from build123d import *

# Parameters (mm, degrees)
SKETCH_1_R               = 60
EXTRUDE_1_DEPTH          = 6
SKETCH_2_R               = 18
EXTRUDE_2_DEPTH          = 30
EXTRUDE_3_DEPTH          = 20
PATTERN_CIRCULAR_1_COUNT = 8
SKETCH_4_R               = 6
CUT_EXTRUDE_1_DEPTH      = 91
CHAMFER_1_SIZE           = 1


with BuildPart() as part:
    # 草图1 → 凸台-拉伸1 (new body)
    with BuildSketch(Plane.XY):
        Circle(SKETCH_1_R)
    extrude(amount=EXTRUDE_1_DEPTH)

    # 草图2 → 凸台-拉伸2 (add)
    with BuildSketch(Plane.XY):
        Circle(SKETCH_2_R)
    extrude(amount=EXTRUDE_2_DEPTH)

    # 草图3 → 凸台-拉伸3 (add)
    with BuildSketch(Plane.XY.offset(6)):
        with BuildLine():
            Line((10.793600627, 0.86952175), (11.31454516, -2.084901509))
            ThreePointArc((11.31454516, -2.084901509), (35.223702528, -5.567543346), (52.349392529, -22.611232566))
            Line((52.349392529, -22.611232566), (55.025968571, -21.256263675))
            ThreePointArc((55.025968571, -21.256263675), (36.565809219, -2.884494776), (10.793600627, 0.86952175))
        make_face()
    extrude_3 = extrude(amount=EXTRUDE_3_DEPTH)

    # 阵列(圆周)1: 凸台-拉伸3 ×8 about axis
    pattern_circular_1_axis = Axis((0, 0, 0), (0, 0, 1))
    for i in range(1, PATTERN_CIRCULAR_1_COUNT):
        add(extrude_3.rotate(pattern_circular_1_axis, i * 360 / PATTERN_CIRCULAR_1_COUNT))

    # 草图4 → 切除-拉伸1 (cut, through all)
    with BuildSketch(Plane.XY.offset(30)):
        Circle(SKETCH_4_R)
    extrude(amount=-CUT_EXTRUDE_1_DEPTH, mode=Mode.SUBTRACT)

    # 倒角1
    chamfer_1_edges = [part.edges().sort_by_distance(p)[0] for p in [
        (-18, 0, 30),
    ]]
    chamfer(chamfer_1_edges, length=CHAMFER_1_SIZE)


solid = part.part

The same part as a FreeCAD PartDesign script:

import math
import FreeCAD as App
import Part
import Sketcher

V = App.Vector
Q = App.Units.Quantity


def edges_at(feature, points):
    """Names of the edges that pass closest to the given points."""
    edges = feature.Shape.Edges
    near = lambda p: min(range(len(edges)), key=lambda i: edges[i].distToShape(Part.Vertex(*p))[0])
    return sorted({f"Edge{near(p) + 1}" for p in points})

doc = App.newDocument("Part")
body = doc.addObject("PartDesign::Body", "Body")

sketch1 = doc.addObject("Sketcher::SketchObject", "Sketch")
body.addObject(sketch1)
sketch1.AttachmentSupport = (doc.XY_Plane, [""])
sketch1.MapMode = "FlatFace"
sketch1.addGeometry(Part.Circle(V(0, 0, 0), V(0, 0, 1), 60), False)
sketch1.addConstraint([
    Sketcher.Constraint("Coincident", 0, 3, -1, 1),
    Sketcher.Constraint("Diameter", 0, Q("120 mm")),
])
pad1 = doc.addObject("PartDesign::Pad", "Pad")
body.addObject(pad1)
pad1.Profile = sketch1
pad1.Length = 6

sketch2 = doc.addObject("Sketcher::SketchObject", "Sketch001")
body.addObject(sketch2)
sketch2.AttachmentSupport = (doc.XY_Plane, [""])
sketch2.MapMode = "FlatFace"
sketch2.addGeometry(Part.Circle(V(0, 0, 0), V(0, 0, 1), 18), False)
sketch2.addConstraint([
    Sketcher.Constraint("Coincident", 0, 3, -1, 1),
    Sketcher.Constraint("Diameter", 0, Q("36 mm")),
])
pad2 = doc.addObject("PartDesign::Pad", "Pad001")
body.addObject(pad2)
pad2.Profile = sketch2
pad2.Length = 30

sketch3 = doc.addObject("Sketcher::SketchObject", "Sketch002")
body.addObject(sketch3)
sketch3.AttachmentSupport = (doc.XY_Plane, [""])
sketch3.MapMode = "FlatFace"
sketch3.AttachmentOffset = App.Placement(V(0, 0, 6), App.Rotation())
sketch3.addGeometry([
    Part.LineSegment(V(10.793601, 0.869522, 0), V(11.314545, -2.084902, 0)),
    Part.ArcOfCircle(Part.Circle(V(18, -40, 0), V(0, 0, 1), 38.5), math.radians(26.85), math.radians(100)),
    Part.LineSegment(V(52.349393, -22.611233, 0), V(55.025969, -21.256264, 0)),
    Part.ArcOfCircle(Part.Circle(V(18, -40, 0), V(0, 0, 1), 41.5), math.radians(26.85), math.radians(100)),
], False)
sketch3.addConstraint([
    Sketcher.Constraint("Coincident", 0, 2, 1, 2),
    Sketcher.Constraint("Coincident", 1, 1, 2, 1),
    Sketcher.Constraint("Coincident", 2, 2, 3, 1),
    Sketcher.Constraint("Coincident", 3, 2, 0, 1),
    Sketcher.Constraint("Coincident", 3, 3, 1, 3),
    Sketcher.Constraint("Radius", 1, Q("38.5 mm")),
    Sketcher.Constraint("Radius", 3, Q("41.5 mm")),
    Sketcher.Constraint("Angle", 0, Q("-80 deg")),
    Sketcher.Constraint("DistanceX", -1, 1, 1, 3, Q("18 mm")),
    Sketcher.Constraint("DistanceY", 1, 3, -1, 1, Q("40 mm")),
    Sketcher.Constraint("Angle", 2, Q("26.85 deg")),
    Sketcher.Constraint("DistanceY", 0, 2, -1, 1, Q("2.084902 mm")),
    Sketcher.Constraint("DistanceX", -1, 1, 2, 2, Q("55.025969 mm")),
])
pad3 = doc.addObject("PartDesign::Pad", "Pad002")
body.addObject(pad3)
pad3.Profile = sketch3
pad3.Length = 20
doc.recompute()

polarpattern = doc.addObject("PartDesign::PolarPattern", "PolarPattern")
body.addObject(polarpattern)
polarpattern.Originals = [pad3]
polarpattern.Axis = (doc.Z_Axis, [""])
polarpattern.Angle = 360
polarpattern.Occurrences = 8
body.Tip = polarpattern

sketch4 = doc.addObject("Sketcher::SketchObject", "Sketch003")
body.addObject(sketch4)
sketch4.AttachmentSupport = (doc.XY_Plane, [""])
sketch4.MapMode = "FlatFace"
sketch4.AttachmentOffset = App.Placement(V(0, 0, 30), App.Rotation())
sketch4.addGeometry(Part.Circle(V(0, 0, 0), V(0, 0, 1), 6), False)
sketch4.addConstraint([
    Sketcher.Constraint("Coincident", 0, 3, -1, 1),
    Sketcher.Constraint("Diameter", 0, Q("12 mm")),
])
pocket1 = doc.addObject("PartDesign::Pocket", "Pocket")
body.addObject(pocket1)
pocket1.Profile = sketch4
pocket1.Type = "ThroughAll"
doc.recompute()

chamfer = doc.addObject("PartDesign::Chamfer", "Chamfer")
body.addObject(chamfer)
chamfer.Base = (pocket1, edges_at(pocket1, [(-18, 0, 30)]))
chamfer.Size = 1

doc.recompute()
